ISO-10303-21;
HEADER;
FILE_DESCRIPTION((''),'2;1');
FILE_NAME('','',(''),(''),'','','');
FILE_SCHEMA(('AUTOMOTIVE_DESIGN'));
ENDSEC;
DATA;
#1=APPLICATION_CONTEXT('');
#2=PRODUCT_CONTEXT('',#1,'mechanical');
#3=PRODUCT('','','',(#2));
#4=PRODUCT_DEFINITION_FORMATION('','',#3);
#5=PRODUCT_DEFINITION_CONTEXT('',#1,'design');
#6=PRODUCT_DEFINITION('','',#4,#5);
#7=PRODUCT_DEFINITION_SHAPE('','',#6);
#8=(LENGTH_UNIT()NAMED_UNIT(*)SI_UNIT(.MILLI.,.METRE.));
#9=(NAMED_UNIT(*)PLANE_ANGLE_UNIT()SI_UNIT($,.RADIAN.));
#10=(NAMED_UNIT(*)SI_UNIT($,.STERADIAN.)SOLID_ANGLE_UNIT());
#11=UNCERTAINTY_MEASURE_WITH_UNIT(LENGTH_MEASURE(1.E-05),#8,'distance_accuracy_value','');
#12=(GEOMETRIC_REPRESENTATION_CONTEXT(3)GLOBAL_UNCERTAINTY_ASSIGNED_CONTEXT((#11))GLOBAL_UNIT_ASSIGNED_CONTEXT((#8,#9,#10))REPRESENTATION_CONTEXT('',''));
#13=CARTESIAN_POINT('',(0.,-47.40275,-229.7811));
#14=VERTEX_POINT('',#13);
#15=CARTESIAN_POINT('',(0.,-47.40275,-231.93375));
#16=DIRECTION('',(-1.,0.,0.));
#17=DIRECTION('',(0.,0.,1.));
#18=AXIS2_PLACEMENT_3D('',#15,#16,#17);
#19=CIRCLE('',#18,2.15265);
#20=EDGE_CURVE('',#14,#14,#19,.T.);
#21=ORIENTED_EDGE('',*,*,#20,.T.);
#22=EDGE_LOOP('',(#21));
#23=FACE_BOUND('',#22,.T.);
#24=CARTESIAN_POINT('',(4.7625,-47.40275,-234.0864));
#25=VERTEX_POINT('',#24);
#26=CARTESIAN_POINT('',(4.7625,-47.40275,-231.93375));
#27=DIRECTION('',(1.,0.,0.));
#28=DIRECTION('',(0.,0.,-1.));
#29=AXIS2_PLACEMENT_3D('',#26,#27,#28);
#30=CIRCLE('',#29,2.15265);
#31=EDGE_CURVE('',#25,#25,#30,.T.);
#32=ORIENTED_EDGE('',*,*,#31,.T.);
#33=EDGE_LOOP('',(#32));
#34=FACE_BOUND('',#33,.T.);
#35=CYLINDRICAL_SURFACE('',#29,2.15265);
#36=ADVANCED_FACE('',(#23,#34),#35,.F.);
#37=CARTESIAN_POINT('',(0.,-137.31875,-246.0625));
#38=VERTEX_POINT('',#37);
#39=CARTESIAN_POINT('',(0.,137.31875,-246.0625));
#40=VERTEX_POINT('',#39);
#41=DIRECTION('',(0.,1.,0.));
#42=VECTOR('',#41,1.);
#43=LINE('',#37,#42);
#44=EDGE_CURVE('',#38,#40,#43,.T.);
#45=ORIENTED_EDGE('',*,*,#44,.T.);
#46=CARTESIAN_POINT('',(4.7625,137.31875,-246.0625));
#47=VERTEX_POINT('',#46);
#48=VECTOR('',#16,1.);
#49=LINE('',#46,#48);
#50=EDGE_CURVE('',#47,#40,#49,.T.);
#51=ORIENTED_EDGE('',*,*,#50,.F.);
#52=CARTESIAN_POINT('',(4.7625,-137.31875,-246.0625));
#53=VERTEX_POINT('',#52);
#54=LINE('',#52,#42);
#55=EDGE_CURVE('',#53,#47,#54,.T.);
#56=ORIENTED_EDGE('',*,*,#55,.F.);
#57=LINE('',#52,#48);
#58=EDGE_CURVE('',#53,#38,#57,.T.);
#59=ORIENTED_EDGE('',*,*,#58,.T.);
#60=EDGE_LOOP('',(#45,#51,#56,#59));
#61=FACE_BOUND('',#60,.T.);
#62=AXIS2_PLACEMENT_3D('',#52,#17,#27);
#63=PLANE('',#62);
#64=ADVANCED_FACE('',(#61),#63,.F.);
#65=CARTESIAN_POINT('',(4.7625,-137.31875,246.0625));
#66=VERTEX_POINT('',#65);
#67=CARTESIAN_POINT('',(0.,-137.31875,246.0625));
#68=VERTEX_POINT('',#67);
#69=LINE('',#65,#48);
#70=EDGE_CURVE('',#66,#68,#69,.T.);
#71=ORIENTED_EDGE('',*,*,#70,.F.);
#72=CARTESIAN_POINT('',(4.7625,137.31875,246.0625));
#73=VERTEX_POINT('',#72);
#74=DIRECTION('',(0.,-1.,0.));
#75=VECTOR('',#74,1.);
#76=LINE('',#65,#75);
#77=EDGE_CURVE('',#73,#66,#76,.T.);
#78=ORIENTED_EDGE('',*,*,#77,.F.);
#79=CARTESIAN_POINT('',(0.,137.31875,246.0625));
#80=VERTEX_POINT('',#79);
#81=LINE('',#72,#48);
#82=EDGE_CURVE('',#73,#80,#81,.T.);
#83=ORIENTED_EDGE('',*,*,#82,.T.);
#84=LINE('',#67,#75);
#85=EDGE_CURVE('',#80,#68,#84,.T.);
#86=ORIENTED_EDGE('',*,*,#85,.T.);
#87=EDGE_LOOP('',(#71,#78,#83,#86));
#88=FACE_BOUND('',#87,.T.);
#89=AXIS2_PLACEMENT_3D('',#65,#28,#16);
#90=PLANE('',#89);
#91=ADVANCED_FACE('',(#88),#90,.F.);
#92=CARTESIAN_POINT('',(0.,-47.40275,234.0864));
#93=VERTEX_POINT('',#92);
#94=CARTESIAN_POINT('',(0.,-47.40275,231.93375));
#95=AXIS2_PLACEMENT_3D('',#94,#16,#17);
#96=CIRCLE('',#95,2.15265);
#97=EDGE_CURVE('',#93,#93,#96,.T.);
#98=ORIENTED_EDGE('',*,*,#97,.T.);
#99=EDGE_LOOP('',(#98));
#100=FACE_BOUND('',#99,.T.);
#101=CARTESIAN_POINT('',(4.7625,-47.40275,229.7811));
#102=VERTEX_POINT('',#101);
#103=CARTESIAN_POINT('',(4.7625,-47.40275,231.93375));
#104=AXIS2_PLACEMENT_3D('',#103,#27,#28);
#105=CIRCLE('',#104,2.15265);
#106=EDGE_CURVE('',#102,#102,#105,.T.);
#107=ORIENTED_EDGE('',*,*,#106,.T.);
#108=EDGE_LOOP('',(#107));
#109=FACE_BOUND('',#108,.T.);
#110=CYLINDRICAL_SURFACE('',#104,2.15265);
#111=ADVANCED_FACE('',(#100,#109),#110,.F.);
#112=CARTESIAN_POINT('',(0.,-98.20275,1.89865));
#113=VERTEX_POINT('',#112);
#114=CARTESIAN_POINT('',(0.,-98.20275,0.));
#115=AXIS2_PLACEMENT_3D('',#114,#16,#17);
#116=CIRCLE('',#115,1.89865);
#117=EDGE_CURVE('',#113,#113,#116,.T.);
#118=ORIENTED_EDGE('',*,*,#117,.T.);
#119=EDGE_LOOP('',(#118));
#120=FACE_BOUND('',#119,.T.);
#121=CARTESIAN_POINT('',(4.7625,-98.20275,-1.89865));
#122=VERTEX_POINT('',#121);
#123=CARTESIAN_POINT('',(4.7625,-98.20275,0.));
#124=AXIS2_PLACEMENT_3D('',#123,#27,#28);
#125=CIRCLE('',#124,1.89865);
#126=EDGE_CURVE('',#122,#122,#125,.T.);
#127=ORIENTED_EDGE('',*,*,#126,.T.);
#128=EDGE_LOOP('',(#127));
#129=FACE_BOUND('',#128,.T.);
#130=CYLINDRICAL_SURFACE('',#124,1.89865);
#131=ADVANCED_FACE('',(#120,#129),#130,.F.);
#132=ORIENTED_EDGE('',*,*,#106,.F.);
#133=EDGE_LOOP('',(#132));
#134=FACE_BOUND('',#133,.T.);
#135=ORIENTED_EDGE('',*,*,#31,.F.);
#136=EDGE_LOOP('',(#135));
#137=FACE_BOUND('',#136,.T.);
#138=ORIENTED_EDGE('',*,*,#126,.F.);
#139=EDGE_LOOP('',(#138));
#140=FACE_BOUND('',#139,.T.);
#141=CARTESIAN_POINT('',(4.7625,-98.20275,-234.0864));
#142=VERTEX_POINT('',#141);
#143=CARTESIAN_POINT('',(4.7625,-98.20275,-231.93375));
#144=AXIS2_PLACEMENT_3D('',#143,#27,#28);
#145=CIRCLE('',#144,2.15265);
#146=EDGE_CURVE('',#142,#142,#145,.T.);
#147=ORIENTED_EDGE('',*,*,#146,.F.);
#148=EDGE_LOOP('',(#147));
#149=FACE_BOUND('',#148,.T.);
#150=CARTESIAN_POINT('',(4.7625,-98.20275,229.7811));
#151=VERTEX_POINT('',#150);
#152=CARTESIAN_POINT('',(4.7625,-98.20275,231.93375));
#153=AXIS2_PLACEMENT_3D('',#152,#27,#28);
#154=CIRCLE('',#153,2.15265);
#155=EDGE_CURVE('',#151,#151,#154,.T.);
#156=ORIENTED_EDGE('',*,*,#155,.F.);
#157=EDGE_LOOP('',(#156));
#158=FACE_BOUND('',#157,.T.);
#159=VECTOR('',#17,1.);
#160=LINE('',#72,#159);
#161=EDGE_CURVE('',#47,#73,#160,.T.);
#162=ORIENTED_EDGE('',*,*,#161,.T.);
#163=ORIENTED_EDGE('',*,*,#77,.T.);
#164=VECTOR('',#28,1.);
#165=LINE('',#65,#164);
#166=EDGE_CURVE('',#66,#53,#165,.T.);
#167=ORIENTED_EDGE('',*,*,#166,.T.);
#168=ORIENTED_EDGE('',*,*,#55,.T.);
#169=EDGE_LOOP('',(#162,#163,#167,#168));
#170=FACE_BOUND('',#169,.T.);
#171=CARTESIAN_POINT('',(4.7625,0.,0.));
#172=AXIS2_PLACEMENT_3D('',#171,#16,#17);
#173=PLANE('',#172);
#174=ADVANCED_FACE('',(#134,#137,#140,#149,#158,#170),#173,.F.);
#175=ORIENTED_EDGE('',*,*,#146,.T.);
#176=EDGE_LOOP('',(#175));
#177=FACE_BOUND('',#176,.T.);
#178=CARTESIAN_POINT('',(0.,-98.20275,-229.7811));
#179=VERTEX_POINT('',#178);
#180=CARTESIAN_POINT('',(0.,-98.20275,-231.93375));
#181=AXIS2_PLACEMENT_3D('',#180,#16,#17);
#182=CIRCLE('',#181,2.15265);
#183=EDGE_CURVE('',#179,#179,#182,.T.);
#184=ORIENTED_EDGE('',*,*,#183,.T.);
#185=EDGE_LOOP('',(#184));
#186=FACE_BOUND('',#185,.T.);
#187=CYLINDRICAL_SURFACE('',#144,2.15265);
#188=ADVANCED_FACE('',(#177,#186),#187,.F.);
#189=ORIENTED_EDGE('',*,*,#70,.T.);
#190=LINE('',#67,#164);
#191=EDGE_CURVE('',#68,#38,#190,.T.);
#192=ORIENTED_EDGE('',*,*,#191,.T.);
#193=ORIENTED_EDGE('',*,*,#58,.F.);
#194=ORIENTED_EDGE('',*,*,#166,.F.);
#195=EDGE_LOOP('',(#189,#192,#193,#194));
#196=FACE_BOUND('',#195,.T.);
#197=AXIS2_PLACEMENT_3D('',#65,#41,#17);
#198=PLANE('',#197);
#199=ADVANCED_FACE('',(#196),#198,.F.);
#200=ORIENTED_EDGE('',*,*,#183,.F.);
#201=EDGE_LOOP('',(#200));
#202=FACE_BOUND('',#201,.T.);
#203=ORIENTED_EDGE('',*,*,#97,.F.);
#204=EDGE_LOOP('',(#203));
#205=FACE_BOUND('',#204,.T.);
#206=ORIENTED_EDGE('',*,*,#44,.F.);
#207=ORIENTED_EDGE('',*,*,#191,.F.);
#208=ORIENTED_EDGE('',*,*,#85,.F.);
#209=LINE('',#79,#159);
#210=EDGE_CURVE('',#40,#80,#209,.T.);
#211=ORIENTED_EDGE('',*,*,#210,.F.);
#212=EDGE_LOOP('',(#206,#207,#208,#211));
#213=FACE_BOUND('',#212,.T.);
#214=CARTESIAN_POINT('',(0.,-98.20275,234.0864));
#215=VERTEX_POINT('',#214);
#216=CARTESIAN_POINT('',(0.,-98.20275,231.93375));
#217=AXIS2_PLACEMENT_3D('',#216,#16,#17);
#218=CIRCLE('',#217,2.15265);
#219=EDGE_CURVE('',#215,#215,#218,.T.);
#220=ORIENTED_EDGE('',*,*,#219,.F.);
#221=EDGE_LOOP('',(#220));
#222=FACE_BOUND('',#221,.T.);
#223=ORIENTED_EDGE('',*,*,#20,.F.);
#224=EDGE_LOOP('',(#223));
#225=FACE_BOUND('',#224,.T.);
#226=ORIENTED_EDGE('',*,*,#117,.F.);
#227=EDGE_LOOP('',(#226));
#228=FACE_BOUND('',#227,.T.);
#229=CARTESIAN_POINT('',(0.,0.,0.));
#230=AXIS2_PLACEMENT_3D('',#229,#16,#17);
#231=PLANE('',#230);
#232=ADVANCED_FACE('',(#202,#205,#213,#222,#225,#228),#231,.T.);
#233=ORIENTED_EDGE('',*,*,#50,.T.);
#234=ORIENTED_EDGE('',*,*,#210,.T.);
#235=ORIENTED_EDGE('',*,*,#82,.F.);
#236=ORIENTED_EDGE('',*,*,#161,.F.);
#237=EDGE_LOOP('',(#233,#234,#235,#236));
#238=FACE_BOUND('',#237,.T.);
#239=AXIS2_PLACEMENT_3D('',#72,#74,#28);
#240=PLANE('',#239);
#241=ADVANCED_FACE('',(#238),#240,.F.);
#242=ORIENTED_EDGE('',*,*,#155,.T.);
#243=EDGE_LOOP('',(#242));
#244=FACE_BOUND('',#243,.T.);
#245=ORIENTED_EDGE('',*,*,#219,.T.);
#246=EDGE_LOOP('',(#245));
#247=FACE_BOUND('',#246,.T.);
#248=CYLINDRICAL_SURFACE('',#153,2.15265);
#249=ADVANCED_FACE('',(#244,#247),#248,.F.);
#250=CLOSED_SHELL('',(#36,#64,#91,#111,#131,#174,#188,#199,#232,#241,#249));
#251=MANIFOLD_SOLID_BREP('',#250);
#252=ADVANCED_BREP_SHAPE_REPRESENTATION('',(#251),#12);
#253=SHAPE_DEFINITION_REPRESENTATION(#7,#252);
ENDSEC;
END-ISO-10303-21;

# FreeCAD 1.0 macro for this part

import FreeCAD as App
import Part
import Sketcher
Q = App.Units.Quantity

doc = App.newDocument("Part")
params = doc.addObject("Spreadsheet::Sheet", "Params")
for row, (alias, value) in enumerate([
    ("sketch1_width", "10.8125 in"),
    ("sketch1_height", "19.375 in"),
    ("pad1_length", "0.1875 in"),
    ("sketch3_width", "0.1875 in"),
    ("sketch3_height", "10.8125 in"),
    ("pad2_length", "306.0625 mm"),
    ("hole_diameter", "0.1695 in"),
    ("hole_depth", "2.93 in"),
    ("hole2_diameter", "0.1495 in"),
    ("hole2_depth", "1 in"),
], start=1):
    params.set(f"A{row}", alias)
    params.set(f"B{row}", "=" + value)
    params.setAlias(f"B{row}", alias)

body = doc.addObject("PartDesign::Body", "Body")

# Sketch on YZ plane
sketch1 = doc.addObject("Sketcher::SketchObject", "Sketch")
body.addObject(sketch1)
sketch1.AttachmentSupport = (doc.YZ_Plane, [""])
sketch1.MapMode = "FlatFace"
sketch1.addGeometry([
    Part.LineSegment(App.Vector(137, 246, 0), App.Vector(-137, 246, 0)),
    Part.LineSegment(App.Vector(-137, 246, 0), App.Vector(-137, -246, 0)),
    Part.LineSegment(App.Vector(-137, -246, 0), App.Vector(137, -246, 0)),
    Part.LineSegment(App.Vector(137, -246, 0), App.Vector(137, 246, 0)),
], False)
sketch1.addConstraint([
    Sketcher.Constraint("Coincident", 0, 2, 1, 1),
    Sketcher.Constraint("Coincident", 1, 2, 2, 1),
    Sketcher.Constraint("Coincident", 2, 2, 3, 1),
    Sketcher.Constraint("Coincident", 3, 2, 0, 1),
    Sketcher.Constraint("Horizontal", 0),
    Sketcher.Constraint("Vertical", 1),
    Sketcher.Constraint("Horizontal", 2),
    Sketcher.Constraint("Vertical", 3),
    Sketcher.Constraint("Symmetric", 0, 2, 2, 2, -1, 1),
    Sketcher.Constraint("DistanceX", 0, 2, 0, 1, Q("10.8125 in")),
    Sketcher.Constraint("DistanceY", 1, 2, 1, 1, Q("19.375 in")),
])
sketch1.setExpression("Constraints[9]", "Params.sketch1_width")
sketch1.setExpression("Constraints[10]", "Params.sketch1_height")
pad1 = doc.addObject("PartDesign::Pad", "Pad")
body.addObject(pad1)
pad1.Profile = sketch1
pad1.setExpression("Length", "Params.pad1_length")

# Sketch on YZ plane
sketch2 = doc.addObject("Sketcher::SketchObject", "Sketch001")
body.addObject(sketch2)
sketch2.AttachmentSupport = (doc.YZ_Plane, [""])
sketch2.MapMode = "FlatFace"
sketch2.AttachmentOffset = App.Placement(App.Vector(0, 0, 0.1875 * 25.4), App.Rotation())
sketch2.addGeometry([
    Part.LineSegment(App.Vector(-60, 25, 0), App.Vector(-60, -25, 0)),  # 0
    Part.LineSegment(App.Vector(-60, -25, 0), App.Vector(-25, -60, 0)),  # 1
    Part.LineSegment(App.Vector(-25, -60, 0), App.Vector(25, -60, 0)),  # 2
    Part.LineSegment(App.Vector(25, -60, 0), App.Vector(60, -25, 0)),  # 3
    Part.LineSegment(App.Vector(60, -25, 0), App.Vector(60, 25, 0)),  # 4
    Part.LineSegment(App.Vector(60, 25, 0), App.Vector(25, 60, 0)),  # 5
    Part.LineSegment(App.Vector(25, 60, 0), App.Vector(-25, 60, 0)),  # 6
    Part.LineSegment(App.Vector(-25, 60, 0), App.Vector(-60, 25, 0)),  # 7
], False)
sketch2.addConstraint([
    Sketcher.Constraint("Coincident", 0, 2, 1, 1),
    Sketcher.Constraint("Coincident", 1, 2, 2, 1),
    Sketcher.Constraint("Coincident", 2, 2, 3, 1),
    Sketcher.Constraint("Coincident", 3, 2, 4, 1),
    Sketcher.Constraint("Coincident", 4, 2, 5, 1),
    Sketcher.Constraint("Coincident", 5, 2, 6, 1),
    Sketcher.Constraint("Coincident", 6, 2, 7, 1),
    Sketcher.Constraint("Coincident", 7, 2, 0, 1),
    Sketcher.Constraint("Vertical", 0),
    Sketcher.Constraint("Horizontal", 2),
    Sketcher.Constraint("Vertical", 4),
    Sketcher.Constraint("Horizontal", 6),
    Sketcher.Constraint("Symmetric", 0, 2, 4, 2, -1, 1),
    Sketcher.Constraint("Symmetric", 1, 2, 5, 2, -1, 1),
    Sketcher.Constraint("Perpendicular", 1, 3),
    Sketcher.Constraint("Perpendicular", 5, 7),
    Sketcher.Constraint("Horizontal", 0, 2, 3, 2),
    Sketcher.Constraint("Horizontal", 4, 2, 7, 2),
    Sketcher.Constraint("Vertical", 2, 2, 5, 2),
    Sketcher.Constraint("Equal", 6, 0),
    Sketcher.Constraint("DistanceX", 0, 2, -1, 1, 60.0),
    Sketcher.Constraint("DistanceX", 2, 1, 2, 2, 49.705627),
])
pocket1 = doc.addObject("PartDesign::Pocket", "Pocket")
body.addObject(pocket1)
pocket1.Profile = sketch2
pocket1.Type = "UpToFirst"

# Sketch on XY plane
sketch3 = doc.addObject("Sketcher::SketchObject", "Sketch002")
body.addObject(sketch3)
sketch3.AttachmentSupport = (doc.XY_Plane, [""])
sketch3.MapMode = "FlatFace"
sketch3.AttachmentOffset = App.Placement(App.Vector(0, 0, 9.6875 * 25.4), App.Rotation())
sketch3.addGeometry([
    Part.LineSegment(App.Vector(0, 137.3, 0), App.Vector(0, -137.3, 0)),
    Part.LineSegment(App.Vector(0, -137.3, 0), App.Vector(4.8, -137.3, 0)),
    Part.LineSegment(App.Vector(4.8, -137.3, 0), App.Vector(4.8, 137.3, 0)),
    Part.LineSegment(App.Vector(4.8, 137.3, 0), App.Vector(0, 137.3, 0)),
], False)
sketch3.addConstraint([
    Sketcher.Constraint("Coincident", 0, 2, 1, 1),
    Sketcher.Constraint("Coincident", 1, 2, 2, 1),
    Sketcher.Constraint("Coincident", 2, 2, 3, 1),
    Sketcher.Constraint("Coincident", 3, 2, 0, 1),
    Sketcher.Constraint("Vertical", 0),
    Sketcher.Constraint("Horizontal", 1),
    Sketcher.Constraint("Vertical", 2),
    Sketcher.Constraint("Horizontal", 3),
    Sketcher.Constraint("Symmetric", 0, 2, 3, 2, -1, 1),
    Sketcher.Constraint("DistanceX", 1, 1, 1, 2, Q("0.1875 in")),
    Sketcher.Constraint("DistanceY", 0, 2, 0, 1, Q("10.8125 in")),
])
sketch3.setExpression("Constraints[9]", "Params.sketch3_width")
sketch3.setExpression("Constraints[10]", "Params.sketch3_height")
pad2 = doc.addObject("PartDesign::Pad", "Pad001")
body.addObject(pad2)
pad2.Profile = sketch3
pad2.setExpression("Length", "Params.pad2_length")
pad2.Reversed = True

# Sketch on YZ plane
sketch4 = doc.addObject("Sketcher::SketchObject", "Sketch003")
body.addObject(sketch4)
sketch4.AttachmentSupport = (doc.YZ_Plane, [""])
sketch4.MapMode = "FlatFace"
sketch4.AttachmentOffset = App.Placement(App.Vector(0, 0, 0.1875 * 25.4), App.Rotation())
sketch4.addGeometry([
    Part.Circle(App.Vector(-98.2, 231.9, 0), App.Vector(0, 0, 1), 2.2),
    Part.Circle(App.Vector(-47.4, 231.9, 0), App.Vector(0, 0, 1), 2.2),
    Part.Circle(App.Vector(-47.4, -231.9, 0), App.Vector(0, 0, 1), 2.2),
    Part.Circle(App.Vector(-98.2, -231.9, 0), App.Vector(0, 0, 1), 2.2),
], False)
sketch4.addConstraint([
    Sketcher.Constraint("Equal", 0, 1),
    Sketcher.Constraint("Equal", 1, 2),
    Sketcher.Constraint("Equal", 2, 3),
    Sketcher.Constraint("Symmetric", 1, 3, 2, 3, -1),
    Sketcher.Constraint("Symmetric", 0, 3, 3, 3, -1),
    Sketcher.Constraint("Horizontal", 0, 3, 1, 3),
    Sketcher.Constraint("DistanceX", 0, 3, 1, 3, Q("2 in")),
    Sketcher.Constraint("Diameter", 0, Q("0.1695 in")),
    Sketcher.Constraint("DistanceY", 2, 3, 1, 3, Q("18.2625 in")),
    Sketcher.Constraint("DistanceX", 0, 3, -1, 1, 98.20275),
])
doc.recompute()
hole = doc.addObject("PartDesign::Hole", "Hole")
body.addObject(hole)
hole.Profile = sketch4
hole.ThreadType = "None"
hole.setExpression("Diameter", "Params.hole_diameter")
hole.DepthType = "Dimension"
hole.setExpression("Depth", "Params.hole_depth")
hole.DrillPoint = "Angled"
hole.DrillPointAngle = 118

# Sketch on YZ plane
sketch5 = doc.addObject("Sketcher::SketchObject", "Sketch004")
body.addObject(sketch5)
sketch5.AttachmentSupport = (doc.YZ_Plane, [""])
sketch5.MapMode = "FlatFace"
sketch5.AttachmentOffset = App.Placement(App.Vector(0, 0, 0.1875 * 25.4), App.Rotation())
sketch5.addGeometry(Part.Circle(App.Vector(-98.2, 0, 0), App.Vector(0, 0, 1), 1.9), False)
sketch5.addConstraint([
    Sketcher.Constraint("PointOnObject", 0, 3, -1),
    Sketcher.Constraint("Diameter", 0, Q("0.1495 in")),
    Sketcher.Constraint("DistanceX", 0, 3, -1, 1, 98.20275),
])
doc.recompute()
hole2 = doc.addObject("PartDesign::Hole", "Hole001")
body.addObject(hole2)
hole2.Profile = sketch5
hole2.ThreadType = "None"
hole2.setExpression("Diameter", "Params.hole2_diameter")
hole2.DepthType = "Dimension"
hole2.setExpression("Depth", "Params.hole2_depth")
hole2.DrillPoint = "Angled"
hole2.DrillPointAngle = 118

doc.recompute()
